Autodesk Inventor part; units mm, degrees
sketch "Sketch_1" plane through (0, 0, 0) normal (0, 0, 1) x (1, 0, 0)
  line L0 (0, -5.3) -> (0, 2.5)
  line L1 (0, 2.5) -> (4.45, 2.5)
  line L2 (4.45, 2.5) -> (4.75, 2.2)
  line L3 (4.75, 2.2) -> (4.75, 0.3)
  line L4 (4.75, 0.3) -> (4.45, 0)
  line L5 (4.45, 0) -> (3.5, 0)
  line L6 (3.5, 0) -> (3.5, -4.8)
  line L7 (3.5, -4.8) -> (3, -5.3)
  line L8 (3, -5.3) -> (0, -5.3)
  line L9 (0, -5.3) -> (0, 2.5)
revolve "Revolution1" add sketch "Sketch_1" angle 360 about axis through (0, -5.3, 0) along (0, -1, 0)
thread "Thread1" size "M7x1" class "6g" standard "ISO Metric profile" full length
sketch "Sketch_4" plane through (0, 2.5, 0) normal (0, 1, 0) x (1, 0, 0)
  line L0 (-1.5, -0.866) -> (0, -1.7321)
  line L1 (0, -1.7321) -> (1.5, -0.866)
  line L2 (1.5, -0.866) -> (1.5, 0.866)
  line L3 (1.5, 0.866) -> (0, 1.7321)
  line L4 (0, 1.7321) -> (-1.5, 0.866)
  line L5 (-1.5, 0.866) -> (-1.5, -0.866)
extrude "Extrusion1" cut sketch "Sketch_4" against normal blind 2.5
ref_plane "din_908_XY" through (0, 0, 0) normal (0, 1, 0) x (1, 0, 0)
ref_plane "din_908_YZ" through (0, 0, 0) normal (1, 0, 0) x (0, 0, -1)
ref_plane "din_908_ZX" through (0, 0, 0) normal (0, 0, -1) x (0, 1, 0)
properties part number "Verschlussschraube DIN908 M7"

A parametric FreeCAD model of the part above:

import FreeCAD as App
import Part
import Sketcher
from FreeCAD import Vector
Q = App.Units.Quantity

doc = App.newDocument("Part")
body = doc.addObject("PartDesign::Body", "Body")

sketch1 = body.newObject("Sketcher::SketchObject", "Sketch")
sketch1.AttachmentSupport = (doc.getObject("XY_Plane"), [""])
sketch1.MapMode = "FlatFace"
sketch1.addGeometry([
    Part.LineSegment(Vector(0, 2.5, 0), Vector(0, -5.3, 0)),
    Part.LineSegment(Vector(0, -5.3, 0), Vector(3, -5.3, 0)),
    Part.LineSegment(Vector(3, -5.3, 0), Vector(3.5, -4.8, 0)),
    Part.LineSegment(Vector(3.5, -4.8, 0), Vector(3.5, 0, 0)),
    Part.LineSegment(Vector(3.5, 0, 0), Vector(4.45, 0, 0)),
    Part.LineSegment(Vector(4.45, 0, 0), Vector(4.75, 0.3, 0)),
    Part.LineSegment(Vector(4.75, 0.3, 0), Vector(4.75, 2.2, 0)),
    Part.LineSegment(Vector(4.75, 2.2, 0), Vector(4.45, 2.5, 0)),
    Part.LineSegment(Vector(4.45, 2.5, 0), Vector(0, 2.5, 0)),
], False)
sketch1.addConstraint([
    Sketcher.Constraint("Coincident", 0, 2, 1, 1),
    Sketcher.Constraint("Coincident", 1, 2, 2, 1),
    Sketcher.Constraint("Coincident", 2, 2, 3, 1),
    Sketcher.Constraint("Coincident", 3, 2, 4, 1),
    Sketcher.Constraint("Coincident", 4, 2, 5, 1),
    Sketcher.Constraint("Coincident", 5, 2, 6, 1),
    Sketcher.Constraint("Coincident", 6, 2, 7, 1),
    Sketcher.Constraint("Coincident", 7, 2, 8, 1),
    Sketcher.Constraint("Coincident", 8, 2, 0, 1),
    Sketcher.Constraint("Vertical", 0),
    Sketcher.Constraint("Horizontal", 1),
    Sketcher.Constraint("Vertical", 3),
    Sketcher.Constraint("Horizontal", 4),
    Sketcher.Constraint("Vertical", 6),
    Sketcher.Constraint("Horizontal", 8),
    Sketcher.Constraint("PointOnObject", 0, 2, -2),
    Sketcher.Constraint("PointOnObject", 3, 2, -1),
    Sketcher.Constraint("Parallel", 2, 5),
    Sketcher.Constraint("Perpendicular", 5, 7),
    Sketcher.Constraint("Vertical", 4, 2, 7, 2),
    Sketcher.Constraint("Equal", 5, 7),
    Sketcher.Constraint("DistanceX", 1, 1, 1, 2, Q("3 mm")),
    Sketcher.Constraint("DistanceY", 0, 2, 0, 1, Q("7.8 mm")),
    Sketcher.Constraint("DistanceY", 3, 1, 3, 2, Q("4.8 mm")),
    Sketcher.Constraint("DistanceY", 6, 1, 6, 2, Q("1.9 mm")),
    Sketcher.Constraint("DistanceY", 2, 2, 6, 2, Q("7 mm")),
    Sketcher.Constraint("DistanceX", 4, 1, 4, 2, Q("0.95 mm")),
])
revolution = body.newObject("PartDesign::Revolution", "Revolution")
revolution.Profile = sketch1
revolution.ReferenceAxis = (sketch1, ["V_Axis"])
revolution.Angle = 360

sketch2 = body.newObject("Sketcher::SketchObject", "Sketch001")
sketch2.AttachmentSupport = (doc.getObject("XZ_Plane"), [""])
sketch2.MapMode = "FlatFace"
sketch2.AttachmentOffset = App.Placement(Vector(0, 0, -2.5), App.Rotation())
sketch2.addGeometry([
    Part.LineSegment(Vector(-1.5, -0.9, 0), Vector(-1.5, 0.9, 0)),
    Part.LineSegment(Vector(-1.5, 0.9, 0), Vector(0, 1.7, 0)),
    Part.LineSegment(Vector(0, 1.7, 0), Vector(1.5, 0.9, 0)),
    Part.LineSegment(Vector(1.5, 0.9, 0), Vector(1.5, -0.9, 0)),
    Part.LineSegment(Vector(1.5, -0.9, 0), Vector(0, -1.7, 0)),
    Part.LineSegment(Vector(0, -1.7, 0), Vector(-1.5, -0.9, 0)),
], False)
sketch2.addConstraint([
    Sketcher.Constraint("Coincident", 0, 2, 1, 1),
    Sketcher.Constraint("Coincident", 1, 2, 2, 1),
    Sketcher.Constraint("Coincident", 2, 2, 3, 1),
    Sketcher.Constraint("Coincident", 3, 2, 4, 1),
    Sketcher.Constraint("Coincident", 4, 2, 5, 1),
    Sketcher.Constraint("Coincident", 5, 2, 0, 1),
    Sketcher.Constraint("Vertical", 0),
    Sketcher.Constraint("Vertical", 3),
    Sketcher.Constraint("Symmetric", 0, 2, 3, 2, -1, 1),
    Sketcher.Constraint("Symmetric", 1, 2, 4, 2, -1, 1),
    Sketcher.Constraint("PointOnObject", 1, 2, -2),
    Sketcher.Constraint("Parallel", 2, 5),
    Sketcher.Constraint("Horizontal", 0, 2, 2, 2),
    Sketcher.Constraint("DistanceX", 0, 2, 2, 2, Q("3 mm")),
    Sketcher.Constraint("DistanceY", 0, 1, 0, 2, Q("1.732 mm")),
    Sketcher.Constraint("Distance", 1, Q("1.732 mm")),
])
pocket1 = body.newObject("PartDesign::Pocket", "Pocket")
pocket1.Profile = sketch2
pocket1.Length = 2.5
pocket1.Reversed = True

doc.recompute()
